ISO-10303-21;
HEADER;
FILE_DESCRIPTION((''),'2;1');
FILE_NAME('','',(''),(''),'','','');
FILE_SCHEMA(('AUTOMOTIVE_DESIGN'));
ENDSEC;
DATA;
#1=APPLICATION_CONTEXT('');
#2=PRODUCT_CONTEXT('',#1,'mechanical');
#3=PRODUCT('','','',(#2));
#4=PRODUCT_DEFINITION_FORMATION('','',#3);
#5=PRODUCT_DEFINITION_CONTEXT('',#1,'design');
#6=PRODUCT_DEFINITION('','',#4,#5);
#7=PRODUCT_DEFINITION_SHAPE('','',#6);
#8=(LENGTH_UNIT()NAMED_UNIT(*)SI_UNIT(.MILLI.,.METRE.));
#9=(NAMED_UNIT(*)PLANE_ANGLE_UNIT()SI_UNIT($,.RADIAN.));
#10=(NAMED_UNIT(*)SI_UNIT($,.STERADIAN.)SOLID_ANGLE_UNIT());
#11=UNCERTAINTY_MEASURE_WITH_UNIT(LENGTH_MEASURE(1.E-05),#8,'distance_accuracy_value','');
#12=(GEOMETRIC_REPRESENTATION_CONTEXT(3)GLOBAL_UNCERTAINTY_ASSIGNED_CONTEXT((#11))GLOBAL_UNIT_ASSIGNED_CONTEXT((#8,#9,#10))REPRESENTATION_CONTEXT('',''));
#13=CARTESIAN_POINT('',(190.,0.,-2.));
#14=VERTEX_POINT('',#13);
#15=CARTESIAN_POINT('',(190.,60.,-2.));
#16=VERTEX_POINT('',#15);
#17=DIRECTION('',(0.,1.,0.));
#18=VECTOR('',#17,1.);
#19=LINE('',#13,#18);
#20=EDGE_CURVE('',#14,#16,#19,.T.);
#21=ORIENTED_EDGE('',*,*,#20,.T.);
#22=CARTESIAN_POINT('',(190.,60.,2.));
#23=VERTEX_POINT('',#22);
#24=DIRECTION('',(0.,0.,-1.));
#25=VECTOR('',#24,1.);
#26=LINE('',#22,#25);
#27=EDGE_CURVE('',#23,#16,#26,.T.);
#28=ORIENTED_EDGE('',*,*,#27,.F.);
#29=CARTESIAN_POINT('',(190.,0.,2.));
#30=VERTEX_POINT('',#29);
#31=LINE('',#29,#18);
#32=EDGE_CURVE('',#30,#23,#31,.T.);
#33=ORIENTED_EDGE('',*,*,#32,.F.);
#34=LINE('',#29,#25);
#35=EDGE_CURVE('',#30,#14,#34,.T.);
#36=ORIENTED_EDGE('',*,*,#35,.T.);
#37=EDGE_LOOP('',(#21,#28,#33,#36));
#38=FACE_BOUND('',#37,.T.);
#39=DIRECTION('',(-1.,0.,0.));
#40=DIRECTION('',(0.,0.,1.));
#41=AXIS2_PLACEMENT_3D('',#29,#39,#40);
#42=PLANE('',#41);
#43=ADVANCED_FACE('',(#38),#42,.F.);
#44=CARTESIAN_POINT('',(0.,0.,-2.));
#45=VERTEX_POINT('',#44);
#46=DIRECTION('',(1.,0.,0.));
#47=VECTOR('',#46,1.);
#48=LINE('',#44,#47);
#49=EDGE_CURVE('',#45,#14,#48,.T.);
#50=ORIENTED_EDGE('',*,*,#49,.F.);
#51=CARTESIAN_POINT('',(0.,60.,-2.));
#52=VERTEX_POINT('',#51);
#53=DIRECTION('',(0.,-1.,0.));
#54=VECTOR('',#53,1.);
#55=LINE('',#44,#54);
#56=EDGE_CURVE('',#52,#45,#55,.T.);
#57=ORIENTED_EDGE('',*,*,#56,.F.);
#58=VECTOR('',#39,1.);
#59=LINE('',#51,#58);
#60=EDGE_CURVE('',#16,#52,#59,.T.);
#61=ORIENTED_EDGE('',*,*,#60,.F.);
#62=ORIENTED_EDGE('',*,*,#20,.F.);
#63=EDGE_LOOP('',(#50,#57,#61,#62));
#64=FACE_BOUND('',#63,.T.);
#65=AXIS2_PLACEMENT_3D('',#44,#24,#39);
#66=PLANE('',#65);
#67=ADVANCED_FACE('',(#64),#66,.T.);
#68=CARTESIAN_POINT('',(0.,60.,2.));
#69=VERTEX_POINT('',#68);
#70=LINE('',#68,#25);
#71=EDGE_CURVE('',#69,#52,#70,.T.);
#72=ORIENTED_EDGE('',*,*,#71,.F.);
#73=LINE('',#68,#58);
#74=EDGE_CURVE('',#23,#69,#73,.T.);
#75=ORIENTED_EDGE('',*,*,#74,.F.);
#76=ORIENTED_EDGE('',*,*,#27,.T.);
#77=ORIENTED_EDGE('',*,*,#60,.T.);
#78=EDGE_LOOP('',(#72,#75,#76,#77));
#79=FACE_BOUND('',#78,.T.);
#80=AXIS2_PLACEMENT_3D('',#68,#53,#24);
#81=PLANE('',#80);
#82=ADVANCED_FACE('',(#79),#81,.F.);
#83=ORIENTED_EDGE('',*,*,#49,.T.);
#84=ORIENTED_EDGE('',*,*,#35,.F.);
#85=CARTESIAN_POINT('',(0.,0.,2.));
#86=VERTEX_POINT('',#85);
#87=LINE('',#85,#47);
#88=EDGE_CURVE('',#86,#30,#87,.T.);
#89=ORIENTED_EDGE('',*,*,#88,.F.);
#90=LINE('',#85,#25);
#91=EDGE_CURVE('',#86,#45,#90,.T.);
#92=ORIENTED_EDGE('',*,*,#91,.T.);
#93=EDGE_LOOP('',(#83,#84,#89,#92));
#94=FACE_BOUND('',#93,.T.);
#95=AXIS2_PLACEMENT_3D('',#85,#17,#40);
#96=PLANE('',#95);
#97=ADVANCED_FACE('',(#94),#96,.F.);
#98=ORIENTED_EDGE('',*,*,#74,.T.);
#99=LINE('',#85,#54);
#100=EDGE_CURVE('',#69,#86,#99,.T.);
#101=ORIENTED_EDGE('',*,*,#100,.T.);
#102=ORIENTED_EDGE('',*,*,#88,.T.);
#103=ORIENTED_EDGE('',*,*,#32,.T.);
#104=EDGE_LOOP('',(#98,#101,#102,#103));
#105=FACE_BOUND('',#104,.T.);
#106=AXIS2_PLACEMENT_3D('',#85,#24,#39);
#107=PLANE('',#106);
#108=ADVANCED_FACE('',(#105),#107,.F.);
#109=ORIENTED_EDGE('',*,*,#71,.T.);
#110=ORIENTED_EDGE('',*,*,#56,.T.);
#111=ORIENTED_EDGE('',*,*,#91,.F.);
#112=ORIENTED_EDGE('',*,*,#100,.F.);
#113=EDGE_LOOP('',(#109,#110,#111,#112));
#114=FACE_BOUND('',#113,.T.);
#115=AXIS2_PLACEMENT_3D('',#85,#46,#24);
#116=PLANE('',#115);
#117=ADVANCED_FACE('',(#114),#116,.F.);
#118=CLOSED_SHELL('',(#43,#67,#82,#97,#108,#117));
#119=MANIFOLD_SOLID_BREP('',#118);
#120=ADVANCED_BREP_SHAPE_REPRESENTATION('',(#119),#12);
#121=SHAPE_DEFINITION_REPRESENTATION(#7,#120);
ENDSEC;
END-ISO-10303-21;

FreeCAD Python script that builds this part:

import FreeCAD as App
import Part
import Sketcher
from FreeCAD import Vector
Q = App.Units.Quantity

doc = App.newDocument("Part")
body = doc.addObject("PartDesign::Body", "Body")

sketch1 = body.newObject("Sketcher::SketchObject", "Sketch")
sketch1.AttachmentSupport = (doc.getObject("XY_Plane"), [""])
sketch1.MapMode = "FlatFace"
sketch1.addGeometry([
    Part.LineSegment(Vector(0, 60, 0), Vector(0, 0, 0)),
    Part.LineSegment(Vector(0, 0, 0), Vector(190, 0, 0)),
    Part.LineSegment(Vector(190, 0, 0), Vector(190, 60, 0)),
    Part.LineSegment(Vector(190, 60, 0), Vector(0, 60, 0)),
], False)
sketch1.addConstraint([
    Sketcher.Constraint("Coincident", 0, 2, 1, 1),
    Sketcher.Constraint("Coincident", 1, 2, 2, 1),
    Sketcher.Constraint("Coincident", 2, 2, 3, 1),
    Sketcher.Constraint("Coincident", 3, 2, 0, 1),
    Sketcher.Constraint("Vertical", 0),
    Sketcher.Constraint("Horizontal", 1),
    Sketcher.Constraint("Vertical", 2),
    Sketcher.Constraint("Horizontal", 3),
    Sketcher.Constraint("Coincident", 0, 2, -1, 1),
    Sketcher.Constraint("DistanceX", 1, 1, 1, 2, Q("190 mm")),
    Sketcher.Constraint("DistanceY", 0, 2, 0, 1, Q("60 mm")),
])
pad1 = body.newObject("PartDesign::Pad", "Pad")
pad1.Profile = sketch1
pad1.Length = 4
pad1.Midplane = True

doc.recompute()
